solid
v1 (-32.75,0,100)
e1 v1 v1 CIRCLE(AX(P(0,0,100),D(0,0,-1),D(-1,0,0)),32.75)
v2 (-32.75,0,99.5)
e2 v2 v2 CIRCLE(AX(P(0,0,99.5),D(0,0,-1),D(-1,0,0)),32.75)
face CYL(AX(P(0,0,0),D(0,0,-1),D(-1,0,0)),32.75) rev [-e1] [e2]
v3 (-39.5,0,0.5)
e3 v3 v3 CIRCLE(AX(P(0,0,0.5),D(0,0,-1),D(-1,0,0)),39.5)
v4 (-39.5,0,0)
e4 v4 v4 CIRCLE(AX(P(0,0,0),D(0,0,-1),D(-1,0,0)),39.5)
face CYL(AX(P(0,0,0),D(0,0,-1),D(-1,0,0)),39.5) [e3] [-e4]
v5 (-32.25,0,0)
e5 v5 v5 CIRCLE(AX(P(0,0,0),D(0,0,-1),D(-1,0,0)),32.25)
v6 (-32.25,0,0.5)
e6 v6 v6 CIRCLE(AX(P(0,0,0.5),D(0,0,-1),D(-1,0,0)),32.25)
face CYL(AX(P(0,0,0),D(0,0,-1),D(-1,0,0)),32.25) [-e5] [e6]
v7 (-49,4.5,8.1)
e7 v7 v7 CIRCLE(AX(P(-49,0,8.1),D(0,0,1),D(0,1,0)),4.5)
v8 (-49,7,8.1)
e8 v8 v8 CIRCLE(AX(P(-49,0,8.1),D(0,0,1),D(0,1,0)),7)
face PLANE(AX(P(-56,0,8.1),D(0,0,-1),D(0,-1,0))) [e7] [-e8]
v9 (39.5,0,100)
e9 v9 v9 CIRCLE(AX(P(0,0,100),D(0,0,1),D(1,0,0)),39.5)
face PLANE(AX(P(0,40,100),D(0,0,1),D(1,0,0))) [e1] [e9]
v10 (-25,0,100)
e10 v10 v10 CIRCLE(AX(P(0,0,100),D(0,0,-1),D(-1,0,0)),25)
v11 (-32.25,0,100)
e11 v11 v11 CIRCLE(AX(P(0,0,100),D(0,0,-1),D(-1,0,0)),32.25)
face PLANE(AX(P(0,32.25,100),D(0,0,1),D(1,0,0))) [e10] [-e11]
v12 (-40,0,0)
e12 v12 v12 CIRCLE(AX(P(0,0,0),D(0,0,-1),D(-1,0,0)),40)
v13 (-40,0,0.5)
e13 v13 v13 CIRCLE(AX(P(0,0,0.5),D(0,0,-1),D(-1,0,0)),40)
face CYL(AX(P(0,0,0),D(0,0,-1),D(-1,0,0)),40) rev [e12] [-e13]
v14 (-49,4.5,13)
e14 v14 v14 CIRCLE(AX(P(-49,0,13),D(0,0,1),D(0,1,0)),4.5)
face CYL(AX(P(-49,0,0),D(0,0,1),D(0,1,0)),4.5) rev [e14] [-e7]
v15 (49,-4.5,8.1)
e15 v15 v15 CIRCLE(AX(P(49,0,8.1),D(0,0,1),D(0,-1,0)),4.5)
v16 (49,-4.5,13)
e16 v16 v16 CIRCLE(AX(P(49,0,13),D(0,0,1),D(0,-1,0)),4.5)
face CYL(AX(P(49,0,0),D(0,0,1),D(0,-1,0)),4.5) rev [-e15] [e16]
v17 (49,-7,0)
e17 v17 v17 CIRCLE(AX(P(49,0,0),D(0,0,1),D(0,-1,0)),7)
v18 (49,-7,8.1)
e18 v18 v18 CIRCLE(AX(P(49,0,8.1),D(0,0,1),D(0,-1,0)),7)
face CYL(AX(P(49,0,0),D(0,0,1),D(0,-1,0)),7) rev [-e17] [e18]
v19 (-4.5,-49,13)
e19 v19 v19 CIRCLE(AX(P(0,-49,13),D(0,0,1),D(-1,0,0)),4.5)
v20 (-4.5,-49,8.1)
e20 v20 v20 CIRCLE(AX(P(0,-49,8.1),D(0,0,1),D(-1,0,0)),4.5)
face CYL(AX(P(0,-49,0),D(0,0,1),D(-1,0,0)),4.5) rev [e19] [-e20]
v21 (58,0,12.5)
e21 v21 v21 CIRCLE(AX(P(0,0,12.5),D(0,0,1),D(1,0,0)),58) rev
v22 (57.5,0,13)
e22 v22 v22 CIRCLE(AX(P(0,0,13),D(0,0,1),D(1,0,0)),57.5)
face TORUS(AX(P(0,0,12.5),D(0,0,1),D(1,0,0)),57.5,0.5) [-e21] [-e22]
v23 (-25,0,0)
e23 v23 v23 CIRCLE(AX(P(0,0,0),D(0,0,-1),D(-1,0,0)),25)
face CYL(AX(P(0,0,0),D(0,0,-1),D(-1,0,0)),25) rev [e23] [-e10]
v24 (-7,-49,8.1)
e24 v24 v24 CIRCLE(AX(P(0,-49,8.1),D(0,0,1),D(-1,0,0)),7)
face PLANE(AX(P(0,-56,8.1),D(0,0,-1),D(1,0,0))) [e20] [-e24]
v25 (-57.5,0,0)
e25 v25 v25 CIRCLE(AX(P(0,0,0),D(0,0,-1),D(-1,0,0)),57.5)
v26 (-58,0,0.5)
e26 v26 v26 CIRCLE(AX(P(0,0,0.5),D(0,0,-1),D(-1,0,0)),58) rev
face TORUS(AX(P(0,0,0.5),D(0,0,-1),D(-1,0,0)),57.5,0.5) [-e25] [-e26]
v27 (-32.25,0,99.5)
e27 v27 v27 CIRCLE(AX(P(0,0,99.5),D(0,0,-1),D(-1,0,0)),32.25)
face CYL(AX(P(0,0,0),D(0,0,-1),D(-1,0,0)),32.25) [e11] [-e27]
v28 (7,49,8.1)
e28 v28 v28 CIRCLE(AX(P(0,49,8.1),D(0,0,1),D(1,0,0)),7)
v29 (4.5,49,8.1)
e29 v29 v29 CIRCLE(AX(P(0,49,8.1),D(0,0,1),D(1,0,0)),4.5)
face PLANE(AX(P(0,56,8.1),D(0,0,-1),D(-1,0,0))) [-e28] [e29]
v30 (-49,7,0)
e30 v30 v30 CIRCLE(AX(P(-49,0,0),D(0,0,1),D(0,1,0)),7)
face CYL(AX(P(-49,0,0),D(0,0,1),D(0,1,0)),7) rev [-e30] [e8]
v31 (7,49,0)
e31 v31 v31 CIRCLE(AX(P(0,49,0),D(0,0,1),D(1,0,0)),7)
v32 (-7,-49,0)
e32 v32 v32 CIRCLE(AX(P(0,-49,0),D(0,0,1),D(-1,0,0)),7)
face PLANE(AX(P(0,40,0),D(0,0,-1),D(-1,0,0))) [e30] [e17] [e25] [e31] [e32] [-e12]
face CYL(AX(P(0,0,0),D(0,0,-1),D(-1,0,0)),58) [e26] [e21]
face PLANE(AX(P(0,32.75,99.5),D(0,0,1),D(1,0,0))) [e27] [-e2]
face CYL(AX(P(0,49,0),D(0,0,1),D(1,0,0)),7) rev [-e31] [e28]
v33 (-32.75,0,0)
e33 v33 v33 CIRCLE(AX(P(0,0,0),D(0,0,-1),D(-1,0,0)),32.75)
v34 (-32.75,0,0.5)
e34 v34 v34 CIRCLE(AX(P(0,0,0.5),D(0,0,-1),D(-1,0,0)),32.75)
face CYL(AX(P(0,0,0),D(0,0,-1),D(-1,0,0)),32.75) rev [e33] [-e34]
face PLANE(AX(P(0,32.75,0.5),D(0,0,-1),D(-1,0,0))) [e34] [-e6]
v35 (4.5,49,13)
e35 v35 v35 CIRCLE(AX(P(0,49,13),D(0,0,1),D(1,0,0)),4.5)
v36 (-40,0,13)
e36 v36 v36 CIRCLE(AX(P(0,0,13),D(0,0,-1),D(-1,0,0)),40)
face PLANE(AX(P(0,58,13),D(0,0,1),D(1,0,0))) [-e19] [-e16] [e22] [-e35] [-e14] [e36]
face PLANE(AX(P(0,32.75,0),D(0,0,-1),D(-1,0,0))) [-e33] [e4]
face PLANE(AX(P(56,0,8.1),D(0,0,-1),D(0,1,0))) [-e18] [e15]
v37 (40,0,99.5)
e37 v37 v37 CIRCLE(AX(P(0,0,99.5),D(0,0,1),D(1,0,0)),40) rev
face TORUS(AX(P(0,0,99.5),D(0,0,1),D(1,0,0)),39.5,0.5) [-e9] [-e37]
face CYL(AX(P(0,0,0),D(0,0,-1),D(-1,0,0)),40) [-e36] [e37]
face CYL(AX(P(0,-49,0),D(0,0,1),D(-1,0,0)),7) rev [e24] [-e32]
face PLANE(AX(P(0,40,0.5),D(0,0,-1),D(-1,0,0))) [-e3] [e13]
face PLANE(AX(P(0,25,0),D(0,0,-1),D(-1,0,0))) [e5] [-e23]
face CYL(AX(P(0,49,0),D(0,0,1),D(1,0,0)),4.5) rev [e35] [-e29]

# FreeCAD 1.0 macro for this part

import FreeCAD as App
import Part
import Sketcher


def edges_at(feature, points):
    """Names of the edges that pass closest to the given points."""
    edges = feature.Shape.Edges
    near = lambda p: min(range(len(edges)), key=lambda i: edges[i].distToShape(Part.Vertex(*p))[0])
    return sorted({f"Edge{near(p) + 1}" for p in points})

doc = App.newDocument("Part")
body = doc.addObject("PartDesign::Body", "Body")

# Sketch on YZ plane
sketch1 = doc.addObject("Sketcher::SketchObject", "Sketch")
body.addObject(sketch1)
sketch1.AttachmentSupport = (doc.YZ_Plane, [""])
sketch1.MapMode = "FlatFace"
sketch1.addGeometry(Part.LineSegment(App.Vector(25, 0, 0), App.Vector(32.2, 0, 0)), False)
sketch1.addGeometry(Part.LineSegment(App.Vector(32.2, 0, 0), App.Vector(32.2, 0.5, 0)), False)
sketch1.addGeometry(Part.LineSegment(App.Vector(32.2, 0.5, 0), App.Vector(32.8, 0.5, 0)), False)
sketch1.addGeometry(Part.LineSegment(App.Vector(32.8, 0.5, 0), App.Vector(32.8, 0, 0)), False)
sketch1.addGeometry(Part.LineSegment(App.Vector(32.8, 0, 0), App.Vector(39.5, 0, 0)), False)
sketch1.addGeometry(Part.LineSegment(App.Vector(39.5, 0, 0), App.Vector(39.5, 0.5, 0)), False)
sketch1.addGeometry(Part.LineSegment(App.Vector(39.5, 0.5, 0), App.Vector(40, 0.5, 0)), False)
sketch1.addGeometry(Part.LineSegment(App.Vector(40, 0.5, 0), App.Vector(40, 0, 0)), False)
sketch1.addGeometry(Part.LineSegment(App.Vector(40, 0, 0), App.Vector(58, 0, 0)), False)
sketch1.addGeometry(Part.LineSegment(App.Vector(58, 0, 0), App.Vector(58, 13, 0)), False)
sketch1.addGeometry(Part.LineSegment(App.Vector(58, 13, 0), App.Vector(40, 13, 0)), False)
sketch1.addGeometry(Part.LineSegment(App.Vector(40, 13, 0), App.Vector(40, 100, 0)), False)
sketch1.addGeometry(Part.LineSegment(App.Vector(40, 100, 0), App.Vector(32.8, 100, 0)), False)
sketch1.addGeometry(Part.LineSegment(App.Vector(32.8, 100, 0), App.Vector(32.8, 99.5, 0)), False)
sketch1.addGeometry(Part.LineSegment(App.Vector(32.8, 99.5, 0), App.Vector(32.2, 99.5, 0)), False)
sketch1.addGeometry(Part.LineSegment(App.Vector(32.2, 99.5, 0), App.Vector(32.2, 100, 0)), False)
sketch1.addGeometry(Part.LineSegment(App.Vector(32.2, 100, 0), App.Vector(25, 100, 0)), False)
sketch1.addGeometry(Part.LineSegment(App.Vector(25, 100, 0), App.Vector(25, 0, 0)), False)
sketch1.addConstraint(Sketcher.Constraint("Coincident", 0, 2, 1, 1))
sketch1.addConstraint(Sketcher.Constraint("Coincident", 1, 2, 2, 1))
sketch1.addConstraint(Sketcher.Constraint("Coincident", 2, 2, 3, 1))
sketch1.addConstraint(Sketcher.Constraint("Coincident", 3, 2, 4, 1))
sketch1.addConstraint(Sketcher.Constraint("Coincident", 4, 2, 5, 1))
sketch1.addConstraint(Sketcher.Constraint("Coincident", 5, 2, 6, 1))
sketch1.addConstraint(Sketcher.Constraint("Coincident", 6, 2, 7, 1))
sketch1.addConstraint(Sketcher.Constraint("Coincident", 7, 2, 8, 1))
sketch1.addConstraint(Sketcher.Constraint("Coincident", 8, 2, 9, 1))
sketch1.addConstraint(Sketcher.Constraint("Coincident", 9, 2, 10, 1))
sketch1.addConstraint(Sketcher.Constraint("Coincident", 10, 2, 11, 1))
sketch1.addConstraint(Sketcher.Constraint("Coincident", 11, 2, 12, 1))
sketch1.addConstraint(Sketcher.Constraint("Coincident", 12, 2, 13, 1))
sketch1.addConstraint(Sketcher.Constraint("Coincident", 13, 2, 14, 1))
sketch1.addConstraint(Sketcher.Constraint("Coincident", 14, 2, 15, 1))
sketch1.addConstraint(Sketcher.Constraint("Coincident", 15, 2, 16, 1))
sketch1.addConstraint(Sketcher.Constraint("Coincident", 16, 2, 17, 1))
sketch1.addConstraint(Sketcher.Constraint("Coincident", 17, 2, 0, 1))
sketch1.addConstraint(Sketcher.Constraint("Horizontal", 0))
sketch1.addConstraint(Sketcher.Constraint("Vertical", 1))
sketch1.addConstraint(Sketcher.Constraint("Horizontal", 2))
sketch1.addConstraint(Sketcher.Constraint("Vertical", 3))
sketch1.addConstraint(Sketcher.Constraint("Horizontal", 4))
sketch1.addConstraint(Sketcher.Constraint("Vertical", 5))
sketch1.addConstraint(Sketcher.Constraint("Horizontal", 6))
sketch1.addConstraint(Sketcher.Constraint("Vertical", 7))
sketch1.addConstraint(Sketcher.Constraint("Horizontal", 8))
sketch1.addConstraint(Sketcher.Constraint("Vertical", 9))
sketch1.addConstraint(Sketcher.Constraint("Horizontal", 10))
sketch1.addConstraint(Sketcher.Constraint("Vertical", 11))
sketch1.addConstraint(Sketcher.Constraint("Horizontal", 12))
sketch1.addConstraint(Sketcher.Constraint("Vertical", 13))
sketch1.addConstraint(Sketcher.Constraint("Horizontal", 14))
sketch1.addConstraint(Sketcher.Constraint("Vertical", 15))
sketch1.addConstraint(Sketcher.Constraint("Horizontal", 16))
sketch1.addConstraint(Sketcher.Constraint("Vertical", 17))
sketch1.addConstraint(Sketcher.Constraint("PointOnObject", 0, 2, -1))
sketch1.addConstraint(Sketcher.Constraint("PointOnObject", 3, 2, -1))
sketch1.addConstraint(Sketcher.Constraint("PointOnObject", 7, 2, -1))
sketch1.addConstraint(Sketcher.Constraint("Horizontal", 2, 2, 5, 2))
sketch1.addConstraint(Sketcher.Constraint("Horizontal", 12, 2, 15, 2))
sketch1.addConstraint(Sketcher.Constraint("Vertical", 7, 2, 10, 2))
sketch1.addConstraint(Sketcher.Constraint("Vertical", 3, 2, 12, 2))
sketch1.addConstraint(Sketcher.Constraint("Vertical", 1, 2, 14, 2))
sketch1.addConstraint(Sketcher.Constraint("Equal", 2, 6))
sketch1.addConstraint(Sketcher.Constraint("Equal", 0, 12))
sketch1.addConstraint(Sketcher.Constraint("Equal", 14, 1))
sketch1.addConstraint(Sketcher.Constraint("Equal", 7, 13))
sketch1.addConstraint(Sketcher.Constraint("DistanceX", 8, 1, 8, 2, 18.0))
sketch1.addConstraint(Sketcher.Constraint("DistanceY", 9, 1, 9, 2, 13.0))
sketch1.addConstraint(Sketcher.Constraint("DistanceY", 11, 1, 11, 2, 87.0))
sketch1.addConstraint(Sketcher.Constraint("DistanceX", 2, 1, 2, 2, 0.5))
sketch1.addConstraint(Sketcher.Constraint("DistanceX", -1, 1, 6, 2, 40.0))
sketch1.addConstraint(Sketcher.Constraint("DistanceX", -1, 1, 16, 2, 25.0))
revolution = doc.addObject("PartDesign::Revolution", "Revolution")
body.addObject(revolution)
revolution.Profile = sketch1
revolution.ReferenceAxis = (sketch1, ["V_Axis"])
revolution.Angle = 360

# Sketch on YZ plane
sketch2 = doc.addObject("Sketcher::SketchObject", "Sketch001")
body.addObject(sketch2)
sketch2.AttachmentSupport = (doc.YZ_Plane, [""])
sketch2.MapMode = "FlatFace"
sketch2.addGeometry(Part.LineSegment(App.Vector(56, 0, 0), App.Vector(56, 8.1, 0)), False)
sketch2.addGeometry(Part.LineSegment(App.Vector(56, 8.1, 0), App.Vector(53.5, 8.1, 0)), False)
sketch2.addGeometry(Part.LineSegment(App.Vector(53.5, 8.1, 0), App.Vector(53.5, 13, 0)), False)
sketch2.addGeometry(Part.LineSegment(App.Vector(53.5, 13, 0), App.Vector(49, 13, 0)), False)
sketch2.addGeometry(Part.LineSegment(App.Vector(49, 13, 0), App.Vector(49, 0, 0)), False)
sketch2.addGeometry(Part.LineSegment(App.Vector(49, 0, 0), App.Vector(56, 0, 0)), False)
sketch2.addGeometry(Part.LineSegment(App.Vector(49, 13, 0), App.Vector(49, 0, 0)), True)  # axis
sketch2.addConstraint(Sketcher.Constraint("Coincident", 0, 2, 1, 1))
sketch2.addConstraint(Sketcher.Constraint("Coincident", 1, 2, 2, 1))
sketch2.addConstraint(Sketcher.Constraint("Coincident", 2, 2, 3, 1))
sketch2.addConstraint(Sketcher.Constraint("Coincident", 3, 2, 4, 1))
sketch2.addConstraint(Sketcher.Constraint("Coincident", 4, 2, 5, 1))
sketch2.addConstraint(Sketcher.Constraint("Coincident", 5, 2, 0, 1))
sketch2.addConstraint(Sketcher.Constraint("Vertical", 0))
sketch2.addConstraint(Sketcher.Constraint("Horizontal", 1))
sketch2.addConstraint(Sketcher.Constraint("Vertical", 2))
sketch2.addConstraint(Sketcher.Constraint("Horizontal", 3))
sketch2.addConstraint(Sketcher.Constraint("Vertical", 4))
sketch2.addConstraint(Sketcher.Constraint("Horizontal", 5))
sketch2.addConstraint(Sketcher.Constraint("Vertical", 6))
sketch2.addConstraint(Sketcher.Constraint("Coincident", 6, 1, 3, 2))
sketch2.addConstraint(Sketcher.Constraint("PointOnObject", 4, 2, -1))
sketch2.addConstraint(Sketcher.Constraint("PointOnObject", 6, 2, -1))
sketch2.addConstraint(Sketcher.Constraint("DistanceX", 5, 1, 5, 2, 7.0))
sketch2.addConstraint(Sketcher.Constraint("DistanceY", 4, 2, 4, 1, 13.0))
sketch2.addConstraint(Sketcher.Constraint("DistanceX", 1, 2, 1, 1, 2.5))
sketch2.addConstraint(Sketcher.Constraint("DistanceY", 0, 1, 0, 2, 8.1))
sketch2.addConstraint(Sketcher.Constraint("DistanceX", -1, 1, 0, 2, 56.0))
groove = doc.addObject("PartDesign::Groove", "Groove")
body.addObject(groove)
groove.Profile = sketch2
groove.ReferenceAxis = (sketch2, ["Axis0"])
groove.Angle = 360
doc.recompute()

polarpattern = doc.addObject("PartDesign::PolarPattern", "PolarPattern")
body.addObject(polarpattern)
polarpattern.Originals = [groove]
polarpattern.Axis = (doc.Z_Axis, [""])
polarpattern.Angle = 360
polarpattern.Occurrences = 4
body.Tip = polarpattern
doc.recompute()

fillet = doc.addObject("PartDesign::Fillet", "Fillet")
body.addObject(fillet)
fillet.Base = (polarpattern, edges_at(polarpattern, [(40, 0, 100), (58, 0, 13), (58, 0, 0)]))
fillet.Radius = 0.5

doc.recompute()
